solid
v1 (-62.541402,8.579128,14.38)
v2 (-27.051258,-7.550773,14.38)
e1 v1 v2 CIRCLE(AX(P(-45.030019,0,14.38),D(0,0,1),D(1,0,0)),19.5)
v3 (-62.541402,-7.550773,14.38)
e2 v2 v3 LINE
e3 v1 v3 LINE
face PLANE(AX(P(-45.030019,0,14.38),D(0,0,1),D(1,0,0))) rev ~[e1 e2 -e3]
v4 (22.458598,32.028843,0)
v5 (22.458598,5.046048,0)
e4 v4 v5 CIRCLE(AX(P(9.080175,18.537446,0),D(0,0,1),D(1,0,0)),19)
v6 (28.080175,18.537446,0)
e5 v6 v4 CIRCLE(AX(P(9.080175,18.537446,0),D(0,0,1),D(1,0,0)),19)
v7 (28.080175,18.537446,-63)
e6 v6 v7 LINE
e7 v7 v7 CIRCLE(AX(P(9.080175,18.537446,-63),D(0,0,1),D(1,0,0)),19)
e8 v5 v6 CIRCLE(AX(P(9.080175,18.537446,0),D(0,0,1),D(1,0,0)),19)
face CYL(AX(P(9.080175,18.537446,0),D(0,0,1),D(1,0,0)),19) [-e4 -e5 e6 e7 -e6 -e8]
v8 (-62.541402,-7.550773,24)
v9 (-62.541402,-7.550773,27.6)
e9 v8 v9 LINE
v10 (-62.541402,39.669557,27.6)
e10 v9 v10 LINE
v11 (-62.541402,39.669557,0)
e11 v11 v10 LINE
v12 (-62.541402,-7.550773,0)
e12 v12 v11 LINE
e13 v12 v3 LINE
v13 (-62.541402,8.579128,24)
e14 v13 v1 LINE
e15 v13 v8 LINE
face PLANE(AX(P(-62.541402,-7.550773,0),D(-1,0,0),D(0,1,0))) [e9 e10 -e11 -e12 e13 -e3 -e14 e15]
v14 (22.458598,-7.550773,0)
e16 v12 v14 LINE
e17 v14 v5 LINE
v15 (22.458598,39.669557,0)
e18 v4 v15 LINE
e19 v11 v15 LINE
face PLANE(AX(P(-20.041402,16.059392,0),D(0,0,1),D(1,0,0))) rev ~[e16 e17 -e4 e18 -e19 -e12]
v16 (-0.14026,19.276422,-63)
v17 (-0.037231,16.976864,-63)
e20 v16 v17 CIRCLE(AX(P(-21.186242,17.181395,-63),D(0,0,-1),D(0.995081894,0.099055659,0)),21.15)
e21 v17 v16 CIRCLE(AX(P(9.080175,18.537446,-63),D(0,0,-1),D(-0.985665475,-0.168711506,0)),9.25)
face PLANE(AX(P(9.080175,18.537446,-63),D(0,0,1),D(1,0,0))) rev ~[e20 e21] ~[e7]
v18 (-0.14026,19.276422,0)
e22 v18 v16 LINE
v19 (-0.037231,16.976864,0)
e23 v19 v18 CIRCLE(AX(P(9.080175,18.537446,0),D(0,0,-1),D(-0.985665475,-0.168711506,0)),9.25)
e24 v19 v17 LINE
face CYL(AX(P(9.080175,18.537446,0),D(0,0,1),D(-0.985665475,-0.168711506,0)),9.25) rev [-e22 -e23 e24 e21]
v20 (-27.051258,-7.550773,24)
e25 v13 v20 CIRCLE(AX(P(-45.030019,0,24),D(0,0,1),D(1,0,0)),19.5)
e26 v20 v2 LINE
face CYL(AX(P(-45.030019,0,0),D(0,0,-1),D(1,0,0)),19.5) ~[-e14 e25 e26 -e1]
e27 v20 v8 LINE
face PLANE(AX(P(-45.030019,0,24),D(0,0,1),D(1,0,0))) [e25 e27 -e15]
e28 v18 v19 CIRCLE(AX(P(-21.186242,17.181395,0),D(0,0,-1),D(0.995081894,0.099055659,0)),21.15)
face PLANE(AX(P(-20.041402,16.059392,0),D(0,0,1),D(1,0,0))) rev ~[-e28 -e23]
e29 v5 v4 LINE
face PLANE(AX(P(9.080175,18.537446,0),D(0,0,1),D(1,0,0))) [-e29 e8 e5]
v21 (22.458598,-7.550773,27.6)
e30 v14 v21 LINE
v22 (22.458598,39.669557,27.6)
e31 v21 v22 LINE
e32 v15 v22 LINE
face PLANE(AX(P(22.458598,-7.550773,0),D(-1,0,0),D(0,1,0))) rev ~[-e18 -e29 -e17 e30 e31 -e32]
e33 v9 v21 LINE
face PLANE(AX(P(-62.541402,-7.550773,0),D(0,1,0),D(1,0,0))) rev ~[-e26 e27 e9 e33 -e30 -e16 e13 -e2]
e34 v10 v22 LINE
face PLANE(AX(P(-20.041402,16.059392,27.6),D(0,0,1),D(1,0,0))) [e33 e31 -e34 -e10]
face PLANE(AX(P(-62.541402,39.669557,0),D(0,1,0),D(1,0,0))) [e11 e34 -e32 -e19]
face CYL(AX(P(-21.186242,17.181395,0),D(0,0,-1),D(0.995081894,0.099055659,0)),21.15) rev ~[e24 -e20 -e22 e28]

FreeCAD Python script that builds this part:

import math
import FreeCAD as App
import Part
import Sketcher

doc = App.newDocument("Part")
params = doc.addObject("Spreadsheet::Sheet", "Params")
for row, (alias, value) in enumerate([
    ("sketch1_diameter", "38 mm"),
    ("sketch1_radius", "21.15 mm"),
    ("sketch1_radius2", "9.25 mm"),
    ("pad1_length", "63 mm"),
    ("sketch2_radius", "21.15 mm"),
    ("sketch2_radius2", "9.25 mm"),
    ("pad2_length", "17 mm"),
    ("sketch3_diameter", "39 mm"),
    ("pad3_length", "24 mm"),
    ("sketch4_diameter", "39 mm"),
    ("pocket1_length", "14.38 mm"),
    ("sketch5_width", "85 mm"),
    ("pad4_length", "27.6 mm"),
], start=1):
    params.set(f"A{row}", alias)
    params.set(f"B{row}", "=" + value)
    params.setAlias(f"B{row}", alias)

body = doc.addObject("PartDesign::Body", "Body")

# Sketch on XY plane
sketch1 = body.newObject("Sketcher::SketchObject", "Sketch")
sketch1.AttachmentSupport = (doc.getObject("XY_Plane"), [""])
sketch1.MapMode = "FlatFace"
sketch1.addGeometry([
    Part.Circle(App.Vector(9.1, 18.5, 0), App.Vector(0, 0, 1), 19),
    Part.ArcOfCircle(Part.Circle(App.Vector(-21.2, 17.2, 0), App.Vector(0, 0, 1), 21.2), math.radians(-0.55), math.radians(5.68)),
    Part.ArcOfCircle(Part.Circle(App.Vector(9.1, 18.5, 0), App.Vector(0, 0, 1), 9.3), math.radians(175.42), math.radians(189.71)),
], False)
sketch1.addConstraint([
    Sketcher.Constraint("Coincident", 1, 1, 2, 2),
    Sketcher.Constraint("Coincident", 2, 1, 1, 2),
    Sketcher.Constraint("Coincident", 2, 3, 0, 3),
    Sketcher.Constraint("Diameter", 0, 38.0),
    Sketcher.Constraint("Radius", 1, 21.15),
    Sketcher.Constraint("Radius", 2, 9.25),
    Sketcher.Constraint("DistanceX", 1, 1, -1, 1, 0.037231),
    Sketcher.Constraint("DistanceX", 2, 1, -1, 1, 0.14026),
    Sketcher.Constraint("DistanceY", -1, 1, 2, 1, 19.276422),
    Sketcher.Constraint("DistanceY", 1, 3, 0, 3, 1.356051),
])
sketch1.setExpression("Constraints[3]", "Params.sketch1_diameter")
sketch1.setExpression("Constraints[4]", "Params.sketch1_radius")
sketch1.setExpression("Constraints[5]", "Params.sketch1_radius2")
pad1 = body.newObject("PartDesign::Pad", "Pad")
pad1.Profile = sketch1
pad1.setExpression("Length", "Params.pad1_length")
pad1.Reversed = True

# Sketch on XY plane
sketch2 = body.newObject("Sketcher::SketchObject", "Sketch001")
sketch2.AttachmentSupport = (doc.getObject("XY_Plane"), [""])
sketch2.MapMode = "FlatFace"
sketch2.addGeometry([
    Part.ArcOfCircle(Part.Circle(App.Vector(-21.2, 17.2, 0), App.Vector(0, 0, 1), 21.2), math.radians(-0.55), math.radians(5.68)),
    Part.ArcOfCircle(Part.Circle(App.Vector(9.1, 18.5, 0), App.Vector(0, 0, 1), 9.2), math.radians(-170), math.radians(175)),
], False)
sketch2.addConstraint([
    Sketcher.Constraint("Coincident", 0, 1, 1, 1),
    Sketcher.Constraint("Coincident", 1, 2, 0, 2),
    Sketcher.Constraint("Radius", 0, 21.15),
    Sketcher.Constraint("Radius", 1, 9.25),
    Sketcher.Constraint("DistanceX", 0, 1, -1, 1, 0.037231),
    Sketcher.Constraint("DistanceX", 1, 2, -1, 1, 0.14026),
    Sketcher.Constraint("DistanceY", -1, 1, 1, 2, 19.276422),
    Sketcher.Constraint("DistanceY", 0, 3, 1, 3, 1.356051),
])
sketch2.setExpression("Constraints[2]", "Params.sketch2_radius")
sketch2.setExpression("Constraints[3]", "Params.sketch2_radius2")
pad2 = body.newObject("PartDesign::Pad", "Pad001")
pad2.Profile = sketch2
pad2.setExpression("Length", "Params.pad2_length")
body2 = doc.addObject("PartDesign::Body", "Body001")

# Sketch on XY plane
sketch3 = body2.newObject("Sketcher::SketchObject", "Sketch002")
sketch3.AttachmentSupport = (doc.getObject("XY_Plane001"), [""])
sketch3.MapMode = "FlatFace"
sketch3.addGeometry(Part.Circle(App.Vector(-45, 0, 0), App.Vector(0, 0, 1), 20), False)
sketch3.addConstraint([
    Sketcher.Constraint("PointOnObject", 0, 3, -1),
    Sketcher.Constraint("Diameter", 0, 39.0),
    Sketcher.Constraint("DistanceX", 0, 3, -1, 1, 45.030019),
])
sketch3.setExpression("Constraints[1]", "Params.sketch3_diameter")
pad3 = body2.newObject("PartDesign::Pad", "Pad002")
pad3.Profile = sketch3
pad3.setExpression("Length", "Params.pad3_length")

# Sketch on XY plane
sketch4 = body2.newObject("Sketcher::SketchObject", "Sketch003")
sketch4.AttachmentSupport = (doc.getObject("XY_Plane001"), [""])
sketch4.MapMode = "FlatFace"
sketch4.addGeometry(Part.Circle(App.Vector(-45, 0, 0), App.Vector(0, 0, 1), 20), False)
sketch4.addConstraint([
    Sketcher.Constraint("PointOnObject", 0, 3, -1),
    Sketcher.Constraint("Diameter", 0, 39.0),
    Sketcher.Constraint("DistanceX", 0, 3, -1, 1, 45.030019),
])
sketch4.setExpression("Constraints[1]", "Params.sketch4_diameter")
pocket1 = body2.newObject("PartDesign::Pocket", "Pocket")
pocket1.Profile = sketch4
pocket1.setExpression("Length", "Params.pocket1_length")
pocket1.Reversed = True
body.AllowCompound = True
doc.recompute()

boolean = body.newObject("PartDesign::Boolean", "Boolean")
boolean.Type = "Fuse"
boolean.addObjects([body2])

# Sketch on XY plane
sketch5 = body.newObject("Sketcher::SketchObject", "Sketch004")
sketch5.AttachmentSupport = (doc.getObject("XY_Plane"), [""])
sketch5.MapMode = "FlatFace"
sketch5.addGeometry([
    Part.LineSegment(App.Vector(-63, 40, 0), App.Vector(-63, -8, 0)),
    Part.LineSegment(App.Vector(-63, -8, 0), App.Vector(22, -8, 0)),
    Part.LineSegment(App.Vector(22, -8, 0), App.Vector(22, 40, 0)),
    Part.LineSegment(App.Vector(22, 40, 0), App.Vector(-63, 40, 0)),
], False)
sketch5.addConstraint([
    Sketcher.Constraint("Coincident", 0, 2, 1, 1),
    Sketcher.Constraint("Coincident", 1, 2, 2, 1),
    Sketcher.Constraint("Coincident", 2, 2, 3, 1),
    Sketcher.Constraint("Coincident", 3, 2, 0, 1),
    Sketcher.Constraint("Vertical", 0),
    Sketcher.Constraint("Horizontal", 1),
    Sketcher.Constraint("Vertical", 2),
    Sketcher.Constraint("Horizontal", 3),
    Sketcher.Constraint("DistanceX", 1, 1, 1, 2, 85.0),
    Sketcher.Constraint("DistanceY", 0, 2, 0, 1, 47.22033),
    Sketcher.Constraint("DistanceX", 0, 2, -1, 1, 62.541402),
    Sketcher.Constraint("DistanceY", 0, 2, -1, 1, 7.550773),
])
sketch5.setExpression("Constraints[8]", "Params.sketch5_width")
pad4 = body.newObject("PartDesign::Pad", "Pad003")
pad4.Profile = sketch5
pad4.setExpression("Length", "Params.pad4_length")

doc.recompute()
